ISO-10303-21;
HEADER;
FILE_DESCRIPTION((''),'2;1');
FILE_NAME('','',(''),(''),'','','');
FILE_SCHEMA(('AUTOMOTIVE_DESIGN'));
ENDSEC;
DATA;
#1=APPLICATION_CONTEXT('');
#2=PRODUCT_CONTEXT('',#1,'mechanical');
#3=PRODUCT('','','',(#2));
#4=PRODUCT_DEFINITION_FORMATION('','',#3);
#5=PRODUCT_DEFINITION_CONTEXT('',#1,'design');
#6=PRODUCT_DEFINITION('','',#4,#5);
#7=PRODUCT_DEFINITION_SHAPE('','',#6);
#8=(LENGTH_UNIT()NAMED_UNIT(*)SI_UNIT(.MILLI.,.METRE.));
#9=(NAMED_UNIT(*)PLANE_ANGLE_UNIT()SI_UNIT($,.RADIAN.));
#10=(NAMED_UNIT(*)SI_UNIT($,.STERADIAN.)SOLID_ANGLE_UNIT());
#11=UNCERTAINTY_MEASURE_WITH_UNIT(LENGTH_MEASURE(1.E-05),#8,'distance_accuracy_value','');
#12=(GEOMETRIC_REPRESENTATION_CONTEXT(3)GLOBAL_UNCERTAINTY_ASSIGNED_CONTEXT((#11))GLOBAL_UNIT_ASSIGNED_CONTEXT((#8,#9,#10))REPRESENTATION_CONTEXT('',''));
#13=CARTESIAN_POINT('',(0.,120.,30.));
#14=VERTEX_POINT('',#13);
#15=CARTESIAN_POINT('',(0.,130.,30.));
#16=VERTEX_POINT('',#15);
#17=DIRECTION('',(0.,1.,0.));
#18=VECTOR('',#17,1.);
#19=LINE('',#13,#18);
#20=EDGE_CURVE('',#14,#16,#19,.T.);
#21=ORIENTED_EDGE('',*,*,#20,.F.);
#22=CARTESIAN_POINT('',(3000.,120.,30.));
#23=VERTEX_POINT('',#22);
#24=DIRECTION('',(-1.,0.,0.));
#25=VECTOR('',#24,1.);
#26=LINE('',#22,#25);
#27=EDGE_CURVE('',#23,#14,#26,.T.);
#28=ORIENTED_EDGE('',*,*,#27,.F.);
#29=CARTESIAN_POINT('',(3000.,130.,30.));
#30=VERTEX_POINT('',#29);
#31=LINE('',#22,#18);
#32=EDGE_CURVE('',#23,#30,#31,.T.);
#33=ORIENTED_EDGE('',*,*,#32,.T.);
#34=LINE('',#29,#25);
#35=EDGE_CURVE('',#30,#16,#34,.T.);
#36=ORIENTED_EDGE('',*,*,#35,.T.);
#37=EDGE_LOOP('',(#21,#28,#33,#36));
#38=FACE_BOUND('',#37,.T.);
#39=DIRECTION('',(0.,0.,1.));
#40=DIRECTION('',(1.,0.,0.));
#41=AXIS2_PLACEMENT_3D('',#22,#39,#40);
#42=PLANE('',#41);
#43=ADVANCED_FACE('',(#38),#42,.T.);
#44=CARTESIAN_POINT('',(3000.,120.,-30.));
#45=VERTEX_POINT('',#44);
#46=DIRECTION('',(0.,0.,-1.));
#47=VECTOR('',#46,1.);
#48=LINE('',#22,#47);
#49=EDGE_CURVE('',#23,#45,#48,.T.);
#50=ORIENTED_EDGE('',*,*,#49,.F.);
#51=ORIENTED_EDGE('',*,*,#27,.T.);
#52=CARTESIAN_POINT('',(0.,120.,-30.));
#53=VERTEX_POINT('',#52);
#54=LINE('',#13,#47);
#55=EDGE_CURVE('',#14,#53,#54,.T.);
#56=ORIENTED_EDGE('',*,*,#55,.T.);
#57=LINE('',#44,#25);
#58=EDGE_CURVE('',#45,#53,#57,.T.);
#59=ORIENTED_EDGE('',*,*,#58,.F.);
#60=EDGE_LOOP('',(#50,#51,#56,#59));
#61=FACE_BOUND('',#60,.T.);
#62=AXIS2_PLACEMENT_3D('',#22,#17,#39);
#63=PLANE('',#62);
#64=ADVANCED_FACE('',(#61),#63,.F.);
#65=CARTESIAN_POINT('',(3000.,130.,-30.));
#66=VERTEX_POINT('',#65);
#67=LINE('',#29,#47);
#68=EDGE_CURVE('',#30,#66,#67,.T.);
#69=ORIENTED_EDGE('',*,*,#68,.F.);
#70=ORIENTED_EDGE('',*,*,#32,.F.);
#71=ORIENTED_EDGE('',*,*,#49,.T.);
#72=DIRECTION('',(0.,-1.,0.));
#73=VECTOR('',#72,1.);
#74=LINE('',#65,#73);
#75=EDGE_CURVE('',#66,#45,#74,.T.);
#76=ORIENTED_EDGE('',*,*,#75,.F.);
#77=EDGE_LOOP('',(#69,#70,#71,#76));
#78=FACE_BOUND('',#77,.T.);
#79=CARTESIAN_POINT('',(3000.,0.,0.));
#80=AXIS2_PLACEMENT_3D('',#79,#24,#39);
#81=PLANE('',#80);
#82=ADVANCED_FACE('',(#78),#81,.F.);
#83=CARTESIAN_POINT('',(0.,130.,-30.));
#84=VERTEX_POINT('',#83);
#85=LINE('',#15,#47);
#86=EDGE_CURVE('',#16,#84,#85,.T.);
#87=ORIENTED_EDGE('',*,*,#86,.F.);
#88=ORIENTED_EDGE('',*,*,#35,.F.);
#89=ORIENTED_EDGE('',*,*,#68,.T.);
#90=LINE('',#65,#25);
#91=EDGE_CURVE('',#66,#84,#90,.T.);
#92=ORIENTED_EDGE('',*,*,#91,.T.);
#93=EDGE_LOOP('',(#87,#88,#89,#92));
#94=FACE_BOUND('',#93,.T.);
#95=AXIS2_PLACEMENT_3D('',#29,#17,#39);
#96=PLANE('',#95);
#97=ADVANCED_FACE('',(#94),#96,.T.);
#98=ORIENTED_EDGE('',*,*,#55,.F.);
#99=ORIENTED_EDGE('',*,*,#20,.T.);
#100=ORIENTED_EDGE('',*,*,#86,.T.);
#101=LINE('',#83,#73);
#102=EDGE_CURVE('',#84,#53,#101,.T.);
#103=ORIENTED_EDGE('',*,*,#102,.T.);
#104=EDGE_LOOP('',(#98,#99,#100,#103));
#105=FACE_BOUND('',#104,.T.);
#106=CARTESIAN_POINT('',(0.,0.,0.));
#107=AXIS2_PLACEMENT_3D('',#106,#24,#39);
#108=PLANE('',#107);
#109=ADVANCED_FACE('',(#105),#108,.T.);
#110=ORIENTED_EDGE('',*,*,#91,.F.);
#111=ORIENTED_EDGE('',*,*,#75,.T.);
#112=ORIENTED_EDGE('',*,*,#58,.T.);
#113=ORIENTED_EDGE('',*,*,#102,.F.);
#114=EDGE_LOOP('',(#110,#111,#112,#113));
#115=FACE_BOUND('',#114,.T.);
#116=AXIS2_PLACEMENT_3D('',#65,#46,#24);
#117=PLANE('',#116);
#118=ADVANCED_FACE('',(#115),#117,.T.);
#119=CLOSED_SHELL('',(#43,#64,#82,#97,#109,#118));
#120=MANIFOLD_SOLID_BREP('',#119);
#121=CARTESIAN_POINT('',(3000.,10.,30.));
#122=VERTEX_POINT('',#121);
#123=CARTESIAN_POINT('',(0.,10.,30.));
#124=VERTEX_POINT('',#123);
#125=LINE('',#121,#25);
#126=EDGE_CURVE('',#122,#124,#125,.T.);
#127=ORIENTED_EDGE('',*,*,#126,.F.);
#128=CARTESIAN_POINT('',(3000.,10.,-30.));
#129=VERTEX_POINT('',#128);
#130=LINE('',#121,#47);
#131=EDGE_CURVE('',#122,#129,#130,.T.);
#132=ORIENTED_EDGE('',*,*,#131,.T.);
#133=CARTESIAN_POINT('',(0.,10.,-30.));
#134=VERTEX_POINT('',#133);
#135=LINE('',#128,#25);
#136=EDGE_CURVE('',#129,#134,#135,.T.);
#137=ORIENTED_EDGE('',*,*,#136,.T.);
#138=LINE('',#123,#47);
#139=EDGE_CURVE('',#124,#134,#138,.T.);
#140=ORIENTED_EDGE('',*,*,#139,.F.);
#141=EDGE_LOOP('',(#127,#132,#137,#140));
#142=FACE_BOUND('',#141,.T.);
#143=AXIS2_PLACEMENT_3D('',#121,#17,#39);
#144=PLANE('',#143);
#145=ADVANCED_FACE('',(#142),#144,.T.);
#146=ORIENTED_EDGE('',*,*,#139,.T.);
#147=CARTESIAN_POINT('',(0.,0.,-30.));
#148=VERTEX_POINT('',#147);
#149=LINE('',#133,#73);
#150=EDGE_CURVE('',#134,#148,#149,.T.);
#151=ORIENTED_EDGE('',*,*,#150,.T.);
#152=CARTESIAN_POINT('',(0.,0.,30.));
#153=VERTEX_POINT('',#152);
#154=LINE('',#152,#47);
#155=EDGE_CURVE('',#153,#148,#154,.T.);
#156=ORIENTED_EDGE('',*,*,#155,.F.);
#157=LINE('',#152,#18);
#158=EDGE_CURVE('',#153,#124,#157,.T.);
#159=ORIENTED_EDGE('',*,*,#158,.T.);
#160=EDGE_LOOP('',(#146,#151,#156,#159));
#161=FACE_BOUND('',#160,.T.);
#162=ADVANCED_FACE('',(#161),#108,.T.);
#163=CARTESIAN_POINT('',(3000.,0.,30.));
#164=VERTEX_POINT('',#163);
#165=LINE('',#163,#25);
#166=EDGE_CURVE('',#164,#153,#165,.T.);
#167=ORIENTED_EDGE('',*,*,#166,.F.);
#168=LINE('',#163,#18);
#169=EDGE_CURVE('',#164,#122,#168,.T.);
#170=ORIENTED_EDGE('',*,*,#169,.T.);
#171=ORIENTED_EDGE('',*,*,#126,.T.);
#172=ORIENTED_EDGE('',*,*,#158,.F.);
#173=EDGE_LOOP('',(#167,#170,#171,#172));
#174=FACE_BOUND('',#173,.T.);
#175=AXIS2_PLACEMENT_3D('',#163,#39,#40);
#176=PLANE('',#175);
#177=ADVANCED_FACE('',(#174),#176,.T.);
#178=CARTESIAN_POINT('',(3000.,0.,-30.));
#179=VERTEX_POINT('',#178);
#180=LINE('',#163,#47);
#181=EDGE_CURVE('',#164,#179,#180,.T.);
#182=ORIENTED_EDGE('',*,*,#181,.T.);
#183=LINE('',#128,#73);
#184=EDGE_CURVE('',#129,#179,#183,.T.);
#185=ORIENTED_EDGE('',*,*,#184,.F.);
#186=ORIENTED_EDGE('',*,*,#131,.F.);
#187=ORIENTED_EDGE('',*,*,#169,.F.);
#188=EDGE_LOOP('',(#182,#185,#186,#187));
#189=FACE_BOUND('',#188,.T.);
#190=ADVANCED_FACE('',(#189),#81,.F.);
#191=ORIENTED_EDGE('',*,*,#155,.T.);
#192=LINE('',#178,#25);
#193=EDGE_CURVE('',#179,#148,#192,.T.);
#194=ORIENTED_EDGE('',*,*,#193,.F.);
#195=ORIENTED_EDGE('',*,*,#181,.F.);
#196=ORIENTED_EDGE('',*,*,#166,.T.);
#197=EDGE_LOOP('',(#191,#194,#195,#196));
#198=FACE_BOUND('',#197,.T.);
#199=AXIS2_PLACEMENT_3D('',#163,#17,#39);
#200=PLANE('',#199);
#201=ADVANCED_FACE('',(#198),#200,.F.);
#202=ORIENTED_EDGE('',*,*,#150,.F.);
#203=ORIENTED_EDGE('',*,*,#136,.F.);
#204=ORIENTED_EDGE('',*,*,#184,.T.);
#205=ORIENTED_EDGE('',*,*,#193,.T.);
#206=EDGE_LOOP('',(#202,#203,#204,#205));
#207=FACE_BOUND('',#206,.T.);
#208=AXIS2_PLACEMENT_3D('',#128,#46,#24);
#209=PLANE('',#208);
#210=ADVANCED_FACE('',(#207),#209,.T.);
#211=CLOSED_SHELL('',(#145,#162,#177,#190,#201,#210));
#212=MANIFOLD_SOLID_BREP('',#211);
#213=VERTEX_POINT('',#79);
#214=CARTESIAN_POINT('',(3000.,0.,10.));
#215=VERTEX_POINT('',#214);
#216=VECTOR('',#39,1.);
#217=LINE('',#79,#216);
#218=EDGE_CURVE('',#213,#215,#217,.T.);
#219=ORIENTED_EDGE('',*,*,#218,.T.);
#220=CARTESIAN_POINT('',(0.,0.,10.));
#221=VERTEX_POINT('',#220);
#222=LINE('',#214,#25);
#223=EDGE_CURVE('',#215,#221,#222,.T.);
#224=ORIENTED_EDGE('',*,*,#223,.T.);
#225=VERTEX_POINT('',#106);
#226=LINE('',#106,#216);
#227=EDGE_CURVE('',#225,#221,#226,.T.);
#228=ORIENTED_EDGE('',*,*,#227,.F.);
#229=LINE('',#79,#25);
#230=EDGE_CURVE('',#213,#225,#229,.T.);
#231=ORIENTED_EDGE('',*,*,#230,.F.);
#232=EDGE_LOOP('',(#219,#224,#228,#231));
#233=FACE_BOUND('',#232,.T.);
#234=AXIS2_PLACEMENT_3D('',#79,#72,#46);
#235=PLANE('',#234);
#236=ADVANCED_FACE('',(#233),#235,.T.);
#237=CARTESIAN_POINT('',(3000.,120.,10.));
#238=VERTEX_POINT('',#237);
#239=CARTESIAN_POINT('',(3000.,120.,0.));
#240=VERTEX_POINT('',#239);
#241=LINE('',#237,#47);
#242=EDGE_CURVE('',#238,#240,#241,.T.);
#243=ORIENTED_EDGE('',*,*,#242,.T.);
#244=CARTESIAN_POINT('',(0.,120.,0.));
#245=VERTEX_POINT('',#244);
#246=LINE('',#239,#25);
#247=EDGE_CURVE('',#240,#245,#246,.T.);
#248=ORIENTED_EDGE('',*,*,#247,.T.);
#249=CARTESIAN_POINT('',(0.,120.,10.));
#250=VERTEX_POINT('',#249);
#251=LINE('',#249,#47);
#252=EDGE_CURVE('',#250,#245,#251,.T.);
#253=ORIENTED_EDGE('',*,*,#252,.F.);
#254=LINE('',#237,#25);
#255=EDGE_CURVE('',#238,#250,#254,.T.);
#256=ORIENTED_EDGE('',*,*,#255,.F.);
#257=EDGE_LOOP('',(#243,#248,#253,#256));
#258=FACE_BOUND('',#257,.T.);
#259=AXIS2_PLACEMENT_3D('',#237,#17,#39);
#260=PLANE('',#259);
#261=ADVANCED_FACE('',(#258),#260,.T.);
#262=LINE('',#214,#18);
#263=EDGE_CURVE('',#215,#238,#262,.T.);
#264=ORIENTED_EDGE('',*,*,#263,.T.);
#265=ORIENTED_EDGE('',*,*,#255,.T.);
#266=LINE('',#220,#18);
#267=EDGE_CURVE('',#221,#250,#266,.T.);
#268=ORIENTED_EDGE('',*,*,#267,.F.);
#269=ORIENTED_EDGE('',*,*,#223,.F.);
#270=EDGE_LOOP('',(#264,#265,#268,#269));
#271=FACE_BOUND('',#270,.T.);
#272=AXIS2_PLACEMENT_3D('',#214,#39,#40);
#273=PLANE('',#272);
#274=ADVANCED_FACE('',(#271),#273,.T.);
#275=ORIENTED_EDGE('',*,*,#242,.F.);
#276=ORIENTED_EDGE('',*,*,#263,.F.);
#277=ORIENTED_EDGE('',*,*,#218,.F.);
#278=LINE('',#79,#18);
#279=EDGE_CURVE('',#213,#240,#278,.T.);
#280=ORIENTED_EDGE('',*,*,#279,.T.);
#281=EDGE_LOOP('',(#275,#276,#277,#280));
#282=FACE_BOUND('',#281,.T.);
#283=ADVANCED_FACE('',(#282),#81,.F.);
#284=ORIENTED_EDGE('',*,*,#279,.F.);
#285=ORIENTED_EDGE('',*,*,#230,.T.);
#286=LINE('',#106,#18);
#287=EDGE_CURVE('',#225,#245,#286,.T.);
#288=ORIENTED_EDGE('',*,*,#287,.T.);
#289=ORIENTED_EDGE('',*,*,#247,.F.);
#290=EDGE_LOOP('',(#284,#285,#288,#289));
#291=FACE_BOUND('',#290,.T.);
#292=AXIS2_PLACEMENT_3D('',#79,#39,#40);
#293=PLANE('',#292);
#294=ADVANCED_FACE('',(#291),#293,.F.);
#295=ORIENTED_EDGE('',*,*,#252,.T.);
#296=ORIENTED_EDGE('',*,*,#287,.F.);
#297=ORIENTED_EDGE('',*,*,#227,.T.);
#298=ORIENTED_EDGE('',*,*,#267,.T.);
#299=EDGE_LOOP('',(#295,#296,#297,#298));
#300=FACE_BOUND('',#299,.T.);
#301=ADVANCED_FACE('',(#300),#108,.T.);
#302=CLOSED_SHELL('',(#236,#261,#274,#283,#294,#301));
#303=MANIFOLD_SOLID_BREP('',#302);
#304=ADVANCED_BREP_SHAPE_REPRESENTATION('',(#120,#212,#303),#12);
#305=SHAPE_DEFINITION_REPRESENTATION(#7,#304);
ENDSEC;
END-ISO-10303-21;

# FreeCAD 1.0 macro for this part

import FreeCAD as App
import Part
import Sketcher


def add_polygon(sketch, points):
    """Adds a closed chain of lines whose ends are joined by coincident constraints."""
    first, n = sketch.GeometryCount, len(points)
    for a, b in zip(points, points[1:] + points[:1]):
        sketch.addGeometry(Part.LineSegment(App.Vector(*a, 0), App.Vector(*b, 0)), False)
    for i in range(n):
        sketch.addConstraint(Sketcher.Constraint("Coincident", first + i, 2, first + (i + 1) % n, 1))

doc = App.newDocument("Part")
body = doc.addObject("PartDesign::Body", "Body")

sketch1 = body.newObject("Sketcher::SketchObject", "Sketch")
sketch1.AttachmentSupport = (doc.getObject("YZ_Plane"), [""])
sketch1.MapMode = "FlatFace"
add_polygon(sketch1, [(10, 30), (0, 30), (0, -30), (10, -30)])
sketch1.addConstraint(Sketcher.Constraint("Horizontal", 0))
sketch1.addConstraint(Sketcher.Constraint("Vertical", 1))
sketch1.addConstraint(Sketcher.Constraint("Horizontal", 2))
sketch1.addConstraint(Sketcher.Constraint("Vertical", 3))
sketch1.addConstraint(Sketcher.Constraint("Symmetric", 0, 2, 1, 2, -1, 1))
sketch1.addConstraint(Sketcher.Constraint("DistanceX", 0, 2, 0, 1, 10.0))
sketch1.addConstraint(Sketcher.Constraint("DistanceY", 1, 2, 1, 1, 60.0))
pad1 = body.newObject("PartDesign::Pad", "Pad")
pad1.Profile = sketch1
pad1.Length = 3000
body2 = doc.addObject("PartDesign::Body", "Body001")

sketch2 = body2.newObject("Sketcher::SketchObject", "Sketch001")
sketch2.AttachmentSupport = (doc.getObject("YZ_Plane001"), [""])
sketch2.MapMode = "FlatFace"
add_polygon(sketch2, [(120, 10), (0, 10), (0, 0), (120, 0)])
sketch2.addConstraint(Sketcher.Constraint("Horizontal", 0))
sketch2.addConstraint(Sketcher.Constraint("Vertical", 1))
sketch2.addConstraint(Sketcher.Constraint("Horizontal", 2))
sketch2.addConstraint(Sketcher.Constraint("Vertical", 3))
sketch2.addConstraint(Sketcher.Constraint("Coincident", 1, 2, -1, 1))
sketch2.addConstraint(Sketcher.Constraint("DistanceX", 0, 2, 0, 1, 120.0))
sketch2.addConstraint(Sketcher.Constraint("DistanceY", 1, 2, 1, 1, 10.0))
pad2 = body2.newObject("PartDesign::Pad", "Pad001")
pad2.Profile = sketch2
pad2.Length = 3000
body3 = doc.addObject("PartDesign::Body", "Body002")

sketch3 = body3.newObject("Sketcher::SketchObject", "Sketch002")
sketch3.AttachmentSupport = (doc.getObject("YZ_Plane002"), [""])
sketch3.MapMode = "FlatFace"
add_polygon(sketch3, [(130, 30), (120, 30), (120, -30), (130, -30)])
sketch3.addConstraint(Sketcher.Constraint("Horizontal", 0))
sketch3.addConstraint(Sketcher.Constraint("Vertical", 1))
sketch3.addConstraint(Sketcher.Constraint("Horizontal", 2))
sketch3.addConstraint(Sketcher.Constraint("Vertical", 3))
sketch3.addConstraint(Sketcher.Constraint("DistanceX", 0, 2, 0, 1, 10.0))
sketch3.addConstraint(Sketcher.Constraint("DistanceY", 1, 2, 1, 1, 60.0))
sketch3.addConstraint(Sketcher.Constraint("DistanceX", -1, 1, 0, 2, 120.0))
sketch3.addConstraint(Sketcher.Constraint("DistanceY", -1, 1, 0, 2, 30.0))
pad3 = body3.newObject("PartDesign::Pad", "Pad002")
pad3.Profile = sketch3
pad3.Length = 3000

doc.recompute()
